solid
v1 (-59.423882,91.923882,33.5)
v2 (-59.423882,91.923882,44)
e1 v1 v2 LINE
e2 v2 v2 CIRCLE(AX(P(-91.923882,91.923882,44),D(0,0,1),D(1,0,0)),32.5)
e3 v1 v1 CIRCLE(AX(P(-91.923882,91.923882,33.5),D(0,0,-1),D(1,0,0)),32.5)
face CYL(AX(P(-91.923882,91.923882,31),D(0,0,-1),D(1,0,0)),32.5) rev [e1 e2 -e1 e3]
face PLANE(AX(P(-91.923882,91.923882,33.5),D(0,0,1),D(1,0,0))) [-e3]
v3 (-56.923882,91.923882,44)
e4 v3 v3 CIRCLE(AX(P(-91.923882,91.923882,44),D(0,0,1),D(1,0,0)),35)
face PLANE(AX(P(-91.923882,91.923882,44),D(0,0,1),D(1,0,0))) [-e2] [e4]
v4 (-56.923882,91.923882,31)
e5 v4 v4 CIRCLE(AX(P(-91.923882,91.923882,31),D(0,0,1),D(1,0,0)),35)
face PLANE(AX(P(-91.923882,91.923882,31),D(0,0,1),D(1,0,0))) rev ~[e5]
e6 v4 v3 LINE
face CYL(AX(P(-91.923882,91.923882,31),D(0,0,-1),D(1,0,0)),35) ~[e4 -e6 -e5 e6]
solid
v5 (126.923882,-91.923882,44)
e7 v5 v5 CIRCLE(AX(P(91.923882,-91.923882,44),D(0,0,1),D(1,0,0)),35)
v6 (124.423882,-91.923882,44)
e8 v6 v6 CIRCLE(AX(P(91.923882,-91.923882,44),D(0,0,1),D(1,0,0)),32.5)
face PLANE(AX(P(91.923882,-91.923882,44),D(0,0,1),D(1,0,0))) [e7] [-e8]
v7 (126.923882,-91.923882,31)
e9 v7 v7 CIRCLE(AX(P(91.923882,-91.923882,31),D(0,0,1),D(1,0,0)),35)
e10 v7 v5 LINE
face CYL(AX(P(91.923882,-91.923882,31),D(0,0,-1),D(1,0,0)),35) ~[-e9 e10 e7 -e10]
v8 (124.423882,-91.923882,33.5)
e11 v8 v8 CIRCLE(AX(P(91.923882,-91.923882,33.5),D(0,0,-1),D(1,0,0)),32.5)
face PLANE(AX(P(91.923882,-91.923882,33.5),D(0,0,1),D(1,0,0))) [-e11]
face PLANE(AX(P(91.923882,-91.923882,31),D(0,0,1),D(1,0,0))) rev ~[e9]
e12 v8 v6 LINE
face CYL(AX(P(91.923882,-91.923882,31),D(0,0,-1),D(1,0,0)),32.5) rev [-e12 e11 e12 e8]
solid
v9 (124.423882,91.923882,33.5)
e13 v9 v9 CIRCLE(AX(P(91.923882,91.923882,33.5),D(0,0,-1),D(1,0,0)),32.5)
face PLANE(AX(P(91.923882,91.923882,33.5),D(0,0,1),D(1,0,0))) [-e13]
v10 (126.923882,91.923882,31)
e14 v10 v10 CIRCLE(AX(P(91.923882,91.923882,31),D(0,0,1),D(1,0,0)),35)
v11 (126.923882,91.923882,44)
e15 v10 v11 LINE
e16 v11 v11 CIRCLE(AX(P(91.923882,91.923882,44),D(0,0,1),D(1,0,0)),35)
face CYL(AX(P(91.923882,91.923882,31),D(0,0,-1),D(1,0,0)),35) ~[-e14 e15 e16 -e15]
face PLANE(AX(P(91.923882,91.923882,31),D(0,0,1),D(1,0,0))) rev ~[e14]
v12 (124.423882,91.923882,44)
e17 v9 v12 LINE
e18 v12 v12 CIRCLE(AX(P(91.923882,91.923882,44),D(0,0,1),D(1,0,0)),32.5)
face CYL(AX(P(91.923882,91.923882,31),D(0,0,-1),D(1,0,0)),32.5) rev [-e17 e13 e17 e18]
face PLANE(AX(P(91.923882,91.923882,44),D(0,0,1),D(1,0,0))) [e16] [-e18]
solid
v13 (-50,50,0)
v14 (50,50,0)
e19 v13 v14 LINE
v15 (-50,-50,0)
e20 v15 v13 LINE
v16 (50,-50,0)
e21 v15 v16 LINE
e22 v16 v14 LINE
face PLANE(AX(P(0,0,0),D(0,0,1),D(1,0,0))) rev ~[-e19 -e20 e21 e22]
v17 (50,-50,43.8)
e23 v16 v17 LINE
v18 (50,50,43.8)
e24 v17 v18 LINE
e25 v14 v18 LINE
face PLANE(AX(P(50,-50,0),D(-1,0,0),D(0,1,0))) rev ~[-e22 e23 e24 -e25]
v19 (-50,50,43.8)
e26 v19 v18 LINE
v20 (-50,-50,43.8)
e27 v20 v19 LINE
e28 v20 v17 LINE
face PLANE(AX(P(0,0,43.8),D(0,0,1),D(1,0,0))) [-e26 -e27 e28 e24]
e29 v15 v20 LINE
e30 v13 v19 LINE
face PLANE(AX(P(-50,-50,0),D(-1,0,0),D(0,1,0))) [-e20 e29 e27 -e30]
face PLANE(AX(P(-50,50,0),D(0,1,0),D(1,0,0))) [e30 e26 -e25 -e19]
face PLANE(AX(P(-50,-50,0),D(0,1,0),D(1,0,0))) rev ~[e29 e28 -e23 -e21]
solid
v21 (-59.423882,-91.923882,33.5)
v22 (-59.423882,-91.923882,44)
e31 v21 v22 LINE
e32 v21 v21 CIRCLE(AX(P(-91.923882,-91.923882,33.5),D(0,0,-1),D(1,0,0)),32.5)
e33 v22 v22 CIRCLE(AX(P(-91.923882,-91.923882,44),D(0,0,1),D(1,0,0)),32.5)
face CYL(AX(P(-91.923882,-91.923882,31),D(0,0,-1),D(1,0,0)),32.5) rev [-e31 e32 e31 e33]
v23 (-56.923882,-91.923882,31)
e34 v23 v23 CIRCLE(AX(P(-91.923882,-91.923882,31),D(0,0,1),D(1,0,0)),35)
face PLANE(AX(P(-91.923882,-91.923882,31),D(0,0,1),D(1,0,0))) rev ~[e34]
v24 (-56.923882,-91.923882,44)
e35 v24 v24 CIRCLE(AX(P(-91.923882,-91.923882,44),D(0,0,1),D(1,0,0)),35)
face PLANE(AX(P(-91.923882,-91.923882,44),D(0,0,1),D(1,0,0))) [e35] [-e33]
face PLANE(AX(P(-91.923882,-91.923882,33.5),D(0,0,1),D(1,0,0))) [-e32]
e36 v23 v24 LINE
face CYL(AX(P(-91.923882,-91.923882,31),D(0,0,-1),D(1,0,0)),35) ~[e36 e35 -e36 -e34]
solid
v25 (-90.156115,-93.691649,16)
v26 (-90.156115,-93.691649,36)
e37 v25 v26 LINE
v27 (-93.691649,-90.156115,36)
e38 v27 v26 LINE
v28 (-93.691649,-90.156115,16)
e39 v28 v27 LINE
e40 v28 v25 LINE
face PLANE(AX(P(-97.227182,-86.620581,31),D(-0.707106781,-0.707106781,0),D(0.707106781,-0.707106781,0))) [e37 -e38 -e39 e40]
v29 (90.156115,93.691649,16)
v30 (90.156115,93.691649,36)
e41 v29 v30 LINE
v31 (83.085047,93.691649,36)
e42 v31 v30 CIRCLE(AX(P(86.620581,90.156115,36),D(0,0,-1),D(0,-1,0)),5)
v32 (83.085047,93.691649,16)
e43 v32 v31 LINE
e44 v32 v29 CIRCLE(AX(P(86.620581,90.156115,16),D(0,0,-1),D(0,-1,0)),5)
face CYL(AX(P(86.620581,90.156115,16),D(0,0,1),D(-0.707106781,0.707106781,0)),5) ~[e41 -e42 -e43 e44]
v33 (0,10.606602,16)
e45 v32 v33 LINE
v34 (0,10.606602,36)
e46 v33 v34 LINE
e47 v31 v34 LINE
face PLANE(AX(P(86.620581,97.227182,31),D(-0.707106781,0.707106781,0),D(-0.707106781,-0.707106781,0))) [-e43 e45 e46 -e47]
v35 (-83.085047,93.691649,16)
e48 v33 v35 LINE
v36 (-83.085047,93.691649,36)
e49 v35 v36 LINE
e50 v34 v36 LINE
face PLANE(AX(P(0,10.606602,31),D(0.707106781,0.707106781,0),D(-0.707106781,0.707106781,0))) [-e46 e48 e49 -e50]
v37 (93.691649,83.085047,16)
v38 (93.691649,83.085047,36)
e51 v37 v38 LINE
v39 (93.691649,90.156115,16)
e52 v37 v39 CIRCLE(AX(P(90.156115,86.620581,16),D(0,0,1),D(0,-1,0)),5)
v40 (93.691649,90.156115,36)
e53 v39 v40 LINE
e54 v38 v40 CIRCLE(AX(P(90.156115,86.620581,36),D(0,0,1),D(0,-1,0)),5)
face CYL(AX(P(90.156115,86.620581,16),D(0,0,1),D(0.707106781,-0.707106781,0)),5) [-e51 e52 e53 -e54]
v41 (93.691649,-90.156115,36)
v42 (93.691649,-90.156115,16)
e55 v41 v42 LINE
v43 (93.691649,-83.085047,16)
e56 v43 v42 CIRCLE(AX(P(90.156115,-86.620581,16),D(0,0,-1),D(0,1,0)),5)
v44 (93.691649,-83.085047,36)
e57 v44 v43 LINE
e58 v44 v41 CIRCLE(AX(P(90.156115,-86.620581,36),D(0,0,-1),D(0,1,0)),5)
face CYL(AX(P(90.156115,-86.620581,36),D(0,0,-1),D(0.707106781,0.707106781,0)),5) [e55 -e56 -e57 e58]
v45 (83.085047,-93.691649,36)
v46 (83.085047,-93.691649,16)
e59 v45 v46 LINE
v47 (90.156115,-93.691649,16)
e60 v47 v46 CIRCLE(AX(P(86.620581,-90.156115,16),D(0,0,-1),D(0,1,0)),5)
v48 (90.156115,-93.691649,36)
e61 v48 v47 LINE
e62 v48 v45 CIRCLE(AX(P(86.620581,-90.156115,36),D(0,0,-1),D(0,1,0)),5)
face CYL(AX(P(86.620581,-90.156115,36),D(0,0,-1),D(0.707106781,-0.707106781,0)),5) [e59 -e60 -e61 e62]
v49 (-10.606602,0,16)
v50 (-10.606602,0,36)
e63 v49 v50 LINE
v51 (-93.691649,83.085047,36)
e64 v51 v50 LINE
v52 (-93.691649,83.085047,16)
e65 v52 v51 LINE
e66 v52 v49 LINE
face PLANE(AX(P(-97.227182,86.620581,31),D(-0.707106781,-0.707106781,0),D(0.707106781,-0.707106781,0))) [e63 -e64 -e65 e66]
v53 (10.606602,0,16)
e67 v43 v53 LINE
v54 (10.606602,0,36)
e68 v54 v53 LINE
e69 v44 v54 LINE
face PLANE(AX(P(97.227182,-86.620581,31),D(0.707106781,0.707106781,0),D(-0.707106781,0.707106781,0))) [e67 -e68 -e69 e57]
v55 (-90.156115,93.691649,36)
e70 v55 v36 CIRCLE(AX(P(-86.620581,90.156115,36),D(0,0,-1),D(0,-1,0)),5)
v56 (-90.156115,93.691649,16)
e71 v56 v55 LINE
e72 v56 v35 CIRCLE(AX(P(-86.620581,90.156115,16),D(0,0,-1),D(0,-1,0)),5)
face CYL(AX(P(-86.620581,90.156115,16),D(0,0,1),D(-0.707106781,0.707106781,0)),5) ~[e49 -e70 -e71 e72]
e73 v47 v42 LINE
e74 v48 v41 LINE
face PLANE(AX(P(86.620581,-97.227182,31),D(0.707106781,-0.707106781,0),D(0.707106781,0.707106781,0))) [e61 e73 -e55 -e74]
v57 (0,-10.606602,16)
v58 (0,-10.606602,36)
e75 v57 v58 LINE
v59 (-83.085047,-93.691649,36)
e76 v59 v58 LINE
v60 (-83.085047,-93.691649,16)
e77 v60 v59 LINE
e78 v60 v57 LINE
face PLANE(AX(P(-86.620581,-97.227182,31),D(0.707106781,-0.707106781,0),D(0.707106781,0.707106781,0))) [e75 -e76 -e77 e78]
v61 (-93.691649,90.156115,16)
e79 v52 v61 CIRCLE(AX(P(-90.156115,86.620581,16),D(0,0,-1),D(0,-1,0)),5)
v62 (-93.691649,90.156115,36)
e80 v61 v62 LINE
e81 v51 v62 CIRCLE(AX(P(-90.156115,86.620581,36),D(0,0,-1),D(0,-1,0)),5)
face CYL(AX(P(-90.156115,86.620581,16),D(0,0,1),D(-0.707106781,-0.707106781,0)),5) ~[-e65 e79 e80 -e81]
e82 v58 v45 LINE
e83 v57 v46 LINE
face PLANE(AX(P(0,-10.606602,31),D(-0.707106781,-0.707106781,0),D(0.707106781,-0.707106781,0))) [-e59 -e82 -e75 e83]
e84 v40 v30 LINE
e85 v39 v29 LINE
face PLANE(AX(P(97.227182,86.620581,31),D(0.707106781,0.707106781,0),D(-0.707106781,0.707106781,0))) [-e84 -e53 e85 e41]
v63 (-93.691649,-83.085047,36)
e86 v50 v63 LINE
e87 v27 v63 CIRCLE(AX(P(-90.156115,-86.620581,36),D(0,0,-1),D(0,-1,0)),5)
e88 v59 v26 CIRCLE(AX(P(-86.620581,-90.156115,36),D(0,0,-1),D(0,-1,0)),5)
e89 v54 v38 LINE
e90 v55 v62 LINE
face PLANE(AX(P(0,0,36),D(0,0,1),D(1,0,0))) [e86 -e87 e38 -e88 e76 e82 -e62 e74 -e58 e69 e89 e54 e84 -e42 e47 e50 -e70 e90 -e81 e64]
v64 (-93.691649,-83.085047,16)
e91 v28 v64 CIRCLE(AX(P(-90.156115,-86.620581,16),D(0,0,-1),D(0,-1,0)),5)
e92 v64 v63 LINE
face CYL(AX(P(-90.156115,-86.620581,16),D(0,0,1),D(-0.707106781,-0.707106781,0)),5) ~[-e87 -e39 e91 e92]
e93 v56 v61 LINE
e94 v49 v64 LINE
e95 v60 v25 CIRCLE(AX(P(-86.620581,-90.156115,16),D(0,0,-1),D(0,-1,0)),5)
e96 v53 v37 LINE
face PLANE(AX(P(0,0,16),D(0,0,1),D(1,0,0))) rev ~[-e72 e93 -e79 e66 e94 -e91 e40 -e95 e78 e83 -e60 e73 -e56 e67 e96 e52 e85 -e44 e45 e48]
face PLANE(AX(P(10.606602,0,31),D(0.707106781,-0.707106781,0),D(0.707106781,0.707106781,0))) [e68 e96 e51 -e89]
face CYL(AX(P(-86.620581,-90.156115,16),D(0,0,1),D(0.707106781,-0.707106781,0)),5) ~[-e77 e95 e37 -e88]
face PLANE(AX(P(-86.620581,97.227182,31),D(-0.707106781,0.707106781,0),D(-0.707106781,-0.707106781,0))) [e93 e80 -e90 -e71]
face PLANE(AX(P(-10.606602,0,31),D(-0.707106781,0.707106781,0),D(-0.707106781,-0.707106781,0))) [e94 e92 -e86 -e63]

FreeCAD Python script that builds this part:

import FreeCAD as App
import Part
import Sketcher
from FreeCAD import Vector
Q = App.Units.Quantity


def edges_at(feature, points):
    """Names of the edges that pass closest to the given points."""
    edges = feature.Shape.Edges
    near = lambda p: min(range(len(edges)), key=lambda i: edges[i].distToShape(Part.Vertex(*p))[0])
    return sorted({f"Edge{near(p) + 1}" for p in points})


def faces_at(feature, points):
    """Names of the faces that lie closest to the given points."""
    faces = feature.Shape.Faces
    near = lambda p: min(range(len(faces)), key=lambda i: faces[i].distToShape(Part.Vertex(*p))[0])
    return sorted({f"Face{near(p) + 1}" for p in points})


def add_polygon(sketch, points):
    """Adds a closed chain of lines whose ends are joined by coincident constraints."""
    first, n = sketch.GeometryCount, len(points)
    for a, b in zip(points, points[1:] + points[:1]):
        sketch.addGeometry(Part.LineSegment(App.Vector(*a, 0), App.Vector(*b, 0)), False)
    for i in range(n):
        sketch.addConstraint(Sketcher.Constraint("Coincident", first + i, 2, first + (i + 1) % n, 1))

doc = App.newDocument("Part")
body = doc.addObject("PartDesign::Body", "Body")

# Sketch on XY plane
sketch1 = body.newObject("Sketcher::SketchObject", "Sketch")
sketch1.AttachmentSupport = (doc.getObject("XY_Plane"), [""])
sketch1.MapMode = "FlatFace"
sketch1.AttachmentOffset = App.Placement(Vector(0, 0, 31), App.Rotation())
sketch1.addGeometry(Part.Circle(Vector(92, 92, 0), Vector(0, 0, 1), 35), False)
sketch1.addConstraint([
    Sketcher.Constraint("Diameter", 0, Q("70 mm")),
    Sketcher.Constraint("DistanceX", -1, 1, 0, 3, Q("91.923882 mm")),
    Sketcher.Constraint("DistanceY", -1, 1, 0, 3, Q("91.923882 mm")),
])
pad1 = body.newObject("PartDesign::Pad", "Pad")
pad1.Profile = sketch1
pad1.Length = 13
doc.recompute()

thickness = body.newObject("PartDesign::Thickness", "Thickness")
thickness.Base = (pad1, faces_at(pad1, [(91.924, 91.924, 44)]))
thickness.Value = 2.5
thickness.Reversed = True
thickness.Join = "Arc"
body2 = doc.addObject("PartDesign::Body", "Body001")

# Sketch on XY plane
sketch2 = body2.newObject("Sketcher::SketchObject", "Sketch001")
sketch2.AttachmentSupport = (doc.getObject("XY_Plane001"), [""])
sketch2.MapMode = "FlatFace"
sketch2.AttachmentOffset = App.Placement(Vector(0, 0, 31), App.Rotation())
sketch2.addGeometry(Part.Circle(Vector(-92, 92, 0), Vector(0, 0, 1), 35), False)
sketch2.addConstraint([
    Sketcher.Constraint("Diameter", 0, Q("70 mm")),
    Sketcher.Constraint("DistanceX", 0, 3, -1, 1, Q("91.923882 mm")),
    Sketcher.Constraint("DistanceY", -1, 1, 0, 3, Q("91.923882 mm")),
])
pad2 = body2.newObject("PartDesign::Pad", "Pad001")
pad2.Profile = sketch2
pad2.Length = 13
doc.recompute()

thickness2 = body2.newObject("PartDesign::Thickness", "Thickness001")
thickness2.Base = (pad2, faces_at(pad2, [(-91.924, 91.924, 44)]))
thickness2.Value = 2.5
thickness2.Reversed = True
thickness2.Join = "Arc"
body3 = doc.addObject("PartDesign::Body", "Body002")

# Sketch on XY plane
sketch3 = body3.newObject("Sketcher::SketchObject", "Sketch002")
sketch3.AttachmentSupport = (doc.getObject("XY_Plane002"), [""])
sketch3.MapMode = "FlatFace"
sketch3.AttachmentOffset = App.Placement(Vector(0, 0, 31), App.Rotation())
sketch3.addGeometry(Part.Circle(Vector(-92, -92, 0), Vector(0, 0, 1), 35), False)
sketch3.addConstraint([
    Sketcher.Constraint("Diameter", 0, Q("70 mm")),
    Sketcher.Constraint("DistanceX", 0, 3, -1, 1, Q("91.923882 mm")),
    Sketcher.Constraint("DistanceY", 0, 3, -1, 1, Q("91.923882 mm")),
])
pad3 = body3.newObject("PartDesign::Pad", "Pad002")
pad3.Profile = sketch3
pad3.Length = 13
doc.recompute()

thickness3 = body3.newObject("PartDesign::Thickness", "Thickness002")
thickness3.Base = (pad3, faces_at(pad3, [(-91.924, -91.924, 44)]))
thickness3.Value = 2.5
thickness3.Reversed = True
thickness3.Join = "Arc"
body4 = doc.addObject("PartDesign::Body", "Body003")

# Sketch on XY plane
sketch4 = body4.newObject("Sketcher::SketchObject", "Sketch003")
sketch4.AttachmentSupport = (doc.getObject("XY_Plane003"), [""])
sketch4.MapMode = "FlatFace"
sketch4.AttachmentOffset = App.Placement(Vector(0, 0, 31), App.Rotation())
sketch4.addGeometry(Part.Circle(Vector(92, -92, 0), Vector(0, 0, 1), 35), False)
sketch4.addConstraint([
    Sketcher.Constraint("Diameter", 0, Q("70 mm")),
    Sketcher.Constraint("DistanceX", -1, 1, 0, 3, Q("91.923882 mm")),
    Sketcher.Constraint("DistanceY", 0, 3, -1, 1, Q("91.923882 mm")),
])
pad4 = body4.newObject("PartDesign::Pad", "Pad003")
pad4.Profile = sketch4
pad4.Length = 13
doc.recompute()

thickness4 = body4.newObject("PartDesign::Thickness", "Thickness003")
thickness4.Base = (pad4, faces_at(pad4, [(91.924, -91.924, 44)]))
thickness4.Value = 2.5
thickness4.Reversed = True
thickness4.Join = "Arc"
body5 = doc.addObject("PartDesign::Body", "Body004")

# Sketch on XY plane
sketch5 = body5.newObject("Sketcher::SketchObject", "Sketch004")
sketch5.AttachmentSupport = (doc.getObject("XY_Plane004"), [""])
sketch5.MapMode = "FlatFace"
add_polygon(sketch5, [(-50, 50), (-50, -50), (50, -50), (50, 50)])  # lines 0-3
sketch5.addConstraint([
    Sketcher.Constraint("Vertical", 0),
    Sketcher.Constraint("Horizontal", 1),
    Sketcher.Constraint("Vertical", 2),
    Sketcher.Constraint("Horizontal", 3),
    Sketcher.Constraint("Symmetric", 0, 2, 2, 2, -1, 1),
    Sketcher.Constraint("Equal", 3, 0),
    Sketcher.Constraint("DistanceX", 1, 1, 1, 2, Q("100 mm")),
])
pad5 = body5.newObject("PartDesign::Pad", "Pad004")
pad5.Profile = sketch5
pad5.Length = 43.8
body6 = doc.addObject("PartDesign::Body", "Body005")

# Sketch on XY plane
sketch6 = body6.newObject("Sketcher::SketchObject", "Sketch005")
sketch6.AttachmentSupport = (doc.getObject("XY_Plane005"), [""])
sketch6.MapMode = "FlatFace"
sketch6.AttachmentOffset = App.Placement(Vector(0, 0, 31), App.Rotation())
add_polygon(sketch6, [(11, 0), (97, 87), (87, 97), (0, 11), (-87, 97), (-97, 87), (-11, 0), (-97, -87), (-87, -97), (0, -11), (87, -97), (97, -87)])  # lines 0-11
sketch6.addConstraint([
    Sketcher.Constraint("Symmetric", 0, 2, 6, 2, -1, 1),
    Sketcher.Constraint("Symmetric", 1, 2, 7, 2, -1, 1),
    Sketcher.Constraint("Symmetric", 2, 2, 8, 2, -1, 1),
    Sketcher.Constraint("Symmetric", 3, 2, 9, 2, -1, 1),
    Sketcher.Constraint("Symmetric", 4, 2, 10, 2, -1, 1),
    Sketcher.Constraint("Symmetric", 5, 2, 11, 2, -1, 1),
    Sketcher.Constraint("Symmetric", 1, 2, 3, 2, -2),
    Sketcher.Constraint("Symmetric", 0, 2, 4, 2, -2),
    Sketcher.Constraint("PointOnObject", 2, 2, -2),
    Sketcher.Constraint("PointOnObject", 5, 2, -1),
    Sketcher.Constraint("Perpendicular", 0, 1),
    Sketcher.Constraint("Perpendicular", 1, 2),
    Sketcher.Constraint("Perpendicular", 2, 3),
    Sketcher.Constraint("Equal", 0, 2),
    Sketcher.Constraint("Distance", 1, Q("15 mm")),
    Sketcher.Constraint("Distance", 0, Q("122.5 mm")),
])
pad6 = body6.newObject("PartDesign::Pad", "Pad005")
pad6.Profile = sketch6
pad6.Type = "TwoLengths"
pad6.Length = 5
pad6.Length2 = 15
doc.recompute()

fillet = body6.newObject("PartDesign::Fillet", "Fillet")
fillet.Base = (pad6, edges_at(pad6, [
    (-97.227, -86.621, 26),
    (-86.621, -97.227, 26),
    (97.227, -86.621, 26),
    (86.621, -97.227, 26),
    (-86.621, 97.227, 26),
    (-97.227, 86.621, 26),
    (97.227, 86.621, 26),
    (86.621, 97.227, 26),
]))
fillet.Radius = 5

doc.recompute()
